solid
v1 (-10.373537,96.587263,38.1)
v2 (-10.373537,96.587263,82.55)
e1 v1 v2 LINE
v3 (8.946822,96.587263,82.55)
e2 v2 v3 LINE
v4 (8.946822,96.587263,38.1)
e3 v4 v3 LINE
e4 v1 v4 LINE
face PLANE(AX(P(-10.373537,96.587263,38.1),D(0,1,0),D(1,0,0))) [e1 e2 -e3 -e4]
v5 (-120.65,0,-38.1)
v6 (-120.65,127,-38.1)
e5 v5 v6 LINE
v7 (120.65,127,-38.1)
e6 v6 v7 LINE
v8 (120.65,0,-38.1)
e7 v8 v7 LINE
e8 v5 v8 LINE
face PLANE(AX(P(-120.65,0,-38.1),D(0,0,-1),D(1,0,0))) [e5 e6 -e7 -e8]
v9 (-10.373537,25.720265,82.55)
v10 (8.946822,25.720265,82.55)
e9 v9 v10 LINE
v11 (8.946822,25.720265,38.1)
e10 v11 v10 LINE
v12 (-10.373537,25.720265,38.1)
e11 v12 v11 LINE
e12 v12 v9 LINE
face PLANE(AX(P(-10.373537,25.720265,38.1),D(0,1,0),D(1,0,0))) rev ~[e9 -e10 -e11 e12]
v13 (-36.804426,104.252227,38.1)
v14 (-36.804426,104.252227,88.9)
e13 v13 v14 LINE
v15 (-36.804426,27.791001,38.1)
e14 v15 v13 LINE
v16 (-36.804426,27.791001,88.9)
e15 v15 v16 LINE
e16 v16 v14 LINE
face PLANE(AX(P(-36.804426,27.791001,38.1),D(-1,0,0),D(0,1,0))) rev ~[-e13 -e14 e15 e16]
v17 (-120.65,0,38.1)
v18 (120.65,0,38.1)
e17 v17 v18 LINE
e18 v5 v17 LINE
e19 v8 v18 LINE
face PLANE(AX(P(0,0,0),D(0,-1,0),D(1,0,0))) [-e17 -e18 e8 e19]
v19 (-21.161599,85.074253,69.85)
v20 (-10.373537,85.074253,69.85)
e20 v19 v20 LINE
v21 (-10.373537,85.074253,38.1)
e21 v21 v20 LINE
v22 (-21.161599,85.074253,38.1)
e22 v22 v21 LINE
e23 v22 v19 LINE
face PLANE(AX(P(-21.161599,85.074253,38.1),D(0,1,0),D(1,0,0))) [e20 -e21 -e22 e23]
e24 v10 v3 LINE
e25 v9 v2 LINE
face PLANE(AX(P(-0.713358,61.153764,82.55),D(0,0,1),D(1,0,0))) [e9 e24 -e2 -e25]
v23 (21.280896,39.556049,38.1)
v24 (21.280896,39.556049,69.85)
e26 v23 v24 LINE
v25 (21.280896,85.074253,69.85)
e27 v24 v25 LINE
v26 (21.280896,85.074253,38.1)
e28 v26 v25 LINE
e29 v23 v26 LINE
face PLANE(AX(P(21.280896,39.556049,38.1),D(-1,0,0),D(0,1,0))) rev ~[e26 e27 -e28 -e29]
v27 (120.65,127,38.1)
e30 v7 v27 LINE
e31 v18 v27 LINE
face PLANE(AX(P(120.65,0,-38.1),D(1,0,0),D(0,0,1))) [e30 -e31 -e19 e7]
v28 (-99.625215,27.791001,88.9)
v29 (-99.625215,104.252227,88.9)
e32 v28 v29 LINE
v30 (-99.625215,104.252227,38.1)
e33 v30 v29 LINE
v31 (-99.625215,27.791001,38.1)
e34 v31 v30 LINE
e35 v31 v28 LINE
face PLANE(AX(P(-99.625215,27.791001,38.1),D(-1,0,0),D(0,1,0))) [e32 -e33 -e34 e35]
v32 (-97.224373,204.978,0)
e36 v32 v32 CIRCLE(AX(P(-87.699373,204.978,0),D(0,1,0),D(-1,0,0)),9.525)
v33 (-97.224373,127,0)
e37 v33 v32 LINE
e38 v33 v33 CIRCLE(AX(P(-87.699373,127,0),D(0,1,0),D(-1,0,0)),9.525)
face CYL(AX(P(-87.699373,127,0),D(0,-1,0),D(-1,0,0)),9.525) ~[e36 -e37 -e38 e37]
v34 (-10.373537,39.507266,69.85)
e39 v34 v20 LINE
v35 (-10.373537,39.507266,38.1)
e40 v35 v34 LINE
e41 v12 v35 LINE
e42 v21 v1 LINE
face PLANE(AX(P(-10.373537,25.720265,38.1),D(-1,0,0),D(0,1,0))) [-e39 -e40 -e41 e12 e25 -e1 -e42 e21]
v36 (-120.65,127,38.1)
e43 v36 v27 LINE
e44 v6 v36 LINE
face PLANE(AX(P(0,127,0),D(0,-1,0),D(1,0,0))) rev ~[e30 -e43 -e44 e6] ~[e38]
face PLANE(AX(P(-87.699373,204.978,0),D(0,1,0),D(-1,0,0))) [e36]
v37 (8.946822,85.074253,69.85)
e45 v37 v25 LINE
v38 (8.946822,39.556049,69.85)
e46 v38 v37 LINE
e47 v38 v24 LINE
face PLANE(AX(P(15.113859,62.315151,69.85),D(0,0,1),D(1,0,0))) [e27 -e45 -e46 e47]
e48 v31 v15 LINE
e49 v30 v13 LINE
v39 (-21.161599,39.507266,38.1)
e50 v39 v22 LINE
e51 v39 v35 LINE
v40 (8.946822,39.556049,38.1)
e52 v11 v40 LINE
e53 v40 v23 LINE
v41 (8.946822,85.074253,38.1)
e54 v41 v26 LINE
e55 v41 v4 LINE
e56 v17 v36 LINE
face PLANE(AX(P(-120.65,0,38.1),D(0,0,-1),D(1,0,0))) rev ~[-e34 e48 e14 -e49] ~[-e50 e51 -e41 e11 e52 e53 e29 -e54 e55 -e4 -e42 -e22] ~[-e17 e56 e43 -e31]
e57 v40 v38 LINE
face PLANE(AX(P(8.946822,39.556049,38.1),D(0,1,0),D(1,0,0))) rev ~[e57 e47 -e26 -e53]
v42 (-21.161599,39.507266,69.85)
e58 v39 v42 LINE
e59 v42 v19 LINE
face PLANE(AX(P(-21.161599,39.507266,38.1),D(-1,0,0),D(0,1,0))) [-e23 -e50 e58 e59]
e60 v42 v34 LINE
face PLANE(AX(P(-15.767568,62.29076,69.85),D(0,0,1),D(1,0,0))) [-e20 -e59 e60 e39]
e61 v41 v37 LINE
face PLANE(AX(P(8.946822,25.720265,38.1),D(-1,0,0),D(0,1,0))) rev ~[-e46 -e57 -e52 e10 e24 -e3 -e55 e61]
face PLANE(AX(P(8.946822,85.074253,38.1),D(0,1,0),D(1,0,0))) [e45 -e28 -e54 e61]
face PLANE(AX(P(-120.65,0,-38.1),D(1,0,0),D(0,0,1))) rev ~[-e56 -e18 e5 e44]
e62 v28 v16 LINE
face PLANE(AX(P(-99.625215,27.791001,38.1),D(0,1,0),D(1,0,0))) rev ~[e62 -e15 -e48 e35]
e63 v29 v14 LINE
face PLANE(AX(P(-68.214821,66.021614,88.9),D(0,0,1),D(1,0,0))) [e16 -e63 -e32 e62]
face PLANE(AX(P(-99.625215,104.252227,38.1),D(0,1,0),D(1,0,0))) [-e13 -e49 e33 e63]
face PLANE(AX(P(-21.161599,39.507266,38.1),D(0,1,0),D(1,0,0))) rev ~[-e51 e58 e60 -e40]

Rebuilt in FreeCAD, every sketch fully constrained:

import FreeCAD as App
import Part
import Sketcher
from FreeCAD import Vector
Q = App.Units.Quantity


def add_polygon(sketch, points):
    """Adds a closed chain of lines whose ends are joined by coincident constraints."""
    first, n = sketch.GeometryCount, len(points)
    for a, b in zip(points, points[1:] + points[:1]):
        sketch.addGeometry(Part.LineSegment(App.Vector(*a, 0), App.Vector(*b, 0)), False)
    for i in range(n):
        sketch.addConstraint(Sketcher.Constraint("Coincident", first + i, 2, first + (i + 1) % n, 1))

doc = App.newDocument("Part")
body = doc.addObject("PartDesign::Body", "Body")

sketch1 = body.newObject("Sketcher::SketchObject", "Sketch")
sketch1.AttachmentSupport = (doc.getObject("XZ_Plane"), [""])
sketch1.MapMode = "FlatFace"
add_polygon(sketch1, [(-121, 38), (-121, -38), (121, -38), (121, 38)])
sketch1.addConstraint([
    Sketcher.Constraint("Vertical", 0),
    Sketcher.Constraint("Horizontal", 1),
    Sketcher.Constraint("Vertical", 2),
    Sketcher.Constraint("Horizontal", 3),
    Sketcher.Constraint("Symmetric", 0, 2, 2, 2, -1, 1),
    Sketcher.Constraint("DistanceY", 0, 2, 0, 1, Q("3 in")),
    Sketcher.Constraint("DistanceX", 1, 1, 1, 2, Q("9.5 in")),
])
pad1 = body.newObject("PartDesign::Pad", "Pad")
pad1.Profile = sketch1
pad1.Length = Q("5 in")
pad1.Reversed = True

sketch2 = body.newObject("Sketcher::SketchObject", "Sketch001")
sketch2.AttachmentSupport = (doc.getObject("XY_Plane"), [""])
sketch2.MapMode = "FlatFace"
sketch2.AttachmentOffset = App.Placement(Vector(0, 0, 1.5 * 25.4), App.Rotation())
add_polygon(sketch2, [(-100, 104), (-100, 28), (-37, 28), (-37, 104)])
sketch2.addConstraint([
    Sketcher.Constraint("Vertical", 0),
    Sketcher.Constraint("Horizontal", 1),
    Sketcher.Constraint("Vertical", 2),
    Sketcher.Constraint("Horizontal", 3),
    Sketcher.Constraint("DistanceX", 1, 1, 1, 2, Q("62.820788 mm")),
    Sketcher.Constraint("DistanceY", -1, 1, 0, 2, Q("27.791001 mm")),
    Sketcher.Constraint("DistanceY", 0, 2, 0, 1, Q("76.461226 mm")),
    Sketcher.Constraint("DistanceX", 0, 2, -1, 1, Q("99.625215 mm")),
])
pad2 = body.newObject("PartDesign::Pad", "Pad001")
pad2.Profile = sketch2
pad2.Length = Q("2 in")

sketch3 = body.newObject("Sketcher::SketchObject", "Sketch002")
sketch3.AttachmentSupport = (doc.getObject("XY_Plane"), [""])
sketch3.MapMode = "FlatFace"
sketch3.AttachmentOffset = App.Placement(Vector(0, 0, 1.5 * 25.4), App.Rotation())
add_polygon(sketch3, [(-10, 97), (-10, 26), (9, 26), (9, 97)])
sketch3.addConstraint([
    Sketcher.Constraint("Vertical", 0),
    Sketcher.Constraint("Horizontal", 1),
    Sketcher.Constraint("Vertical", 2),
    Sketcher.Constraint("Horizontal", 3),
    Sketcher.Constraint("DistanceY", 0, 2, 0, 1, Q("70.866998 mm")),
    Sketcher.Constraint("DistanceX", 1, 1, 1, 2, Q("19.320359 mm")),
    Sketcher.Constraint("DistanceX", 0, 2, -1, 1, Q("10.373537 mm")),
    Sketcher.Constraint("DistanceY", -1, 1, 0, 2, Q("25.720265 mm")),
])
pad3 = body.newObject("PartDesign::Pad", "Pad002")
pad3.Profile = sketch3
pad3.Length = Q("1.75 in")

sketch4 = body.newObject("Sketcher::SketchObject", "Sketch003")
sketch4.AttachmentSupport = (doc.getObject("XY_Plane"), [""])
sketch4.MapMode = "FlatFace"
sketch4.AttachmentOffset = App.Placement(Vector(0, 0, 1.5 * 25.4), App.Rotation())
add_polygon(sketch4, [(-21, 85), (-21, 40), (-10, 40), (-10, 85)])
add_polygon(sketch4, [(9, 85), (9, 40), (21, 40), (21, 85)])
sketch4.addConstraint([
    Sketcher.Constraint("Vertical", 0),
    Sketcher.Constraint("Horizontal", 1),
    Sketcher.Constraint("Vertical", 2),
    Sketcher.Constraint("Horizontal", 3),
    Sketcher.Constraint("Vertical", 4),
    Sketcher.Constraint("Horizontal", 5),
    Sketcher.Constraint("Vertical", 6),
    Sketcher.Constraint("Horizontal", 7),
    Sketcher.Constraint("Horizontal", 3, 2, 6, 2),
    Sketcher.Constraint("DistanceX", 1, 1, 1, 2, Q("10.788062 mm")),
    Sketcher.Constraint("DistanceX", 0, 2, -1, 1, Q("21.161599 mm")),
    Sketcher.Constraint("DistanceX", 5, 1, 5, 2, Q("12.334074 mm")),
    Sketcher.Constraint("DistanceY", 0, 2, 0, 1, Q("45.566987 mm")),
    Sketcher.Constraint("DistanceY", 4, 2, 4, 1, Q("45.518205 mm")),
    Sketcher.Constraint("DistanceY", -1, 1, 4, 2, Q("39.556049 mm")),
    Sketcher.Constraint("DistanceX", 1, 2, 4, 2, Q("19.320359 mm")),
])
pad4 = body.newObject("PartDesign::Pad", "Pad003")
pad4.Profile = sketch4
pad4.Length = Q("1.25 in")

sketch5 = body.newObject("Sketcher::SketchObject", "Sketch004")
sketch5.AttachmentSupport = (doc.getObject("XZ_Plane"), [""])
sketch5.MapMode = "FlatFace"
sketch5.AttachmentOffset = App.Placement(Vector(0, 0, -5 * 25.4), App.Rotation())
sketch5.addGeometry(Part.Circle(Vector(-88, 0, 0), Vector(0, 0, 1), 10), False)
sketch5.addConstraint([
    Sketcher.Constraint("PointOnObject", 0, 3, -1),
    Sketcher.Constraint("Diameter", 0, Q("0.75 in")),
    Sketcher.Constraint("DistanceX", 0, 3, -1, 1, Q("87.699373 mm")),
])
pad5 = body.newObject("PartDesign::Pad", "Pad004")
pad5.Profile = sketch5
pad5.Length = Q("3.07 in")
pad5.Reversed = True

doc.recompute()
